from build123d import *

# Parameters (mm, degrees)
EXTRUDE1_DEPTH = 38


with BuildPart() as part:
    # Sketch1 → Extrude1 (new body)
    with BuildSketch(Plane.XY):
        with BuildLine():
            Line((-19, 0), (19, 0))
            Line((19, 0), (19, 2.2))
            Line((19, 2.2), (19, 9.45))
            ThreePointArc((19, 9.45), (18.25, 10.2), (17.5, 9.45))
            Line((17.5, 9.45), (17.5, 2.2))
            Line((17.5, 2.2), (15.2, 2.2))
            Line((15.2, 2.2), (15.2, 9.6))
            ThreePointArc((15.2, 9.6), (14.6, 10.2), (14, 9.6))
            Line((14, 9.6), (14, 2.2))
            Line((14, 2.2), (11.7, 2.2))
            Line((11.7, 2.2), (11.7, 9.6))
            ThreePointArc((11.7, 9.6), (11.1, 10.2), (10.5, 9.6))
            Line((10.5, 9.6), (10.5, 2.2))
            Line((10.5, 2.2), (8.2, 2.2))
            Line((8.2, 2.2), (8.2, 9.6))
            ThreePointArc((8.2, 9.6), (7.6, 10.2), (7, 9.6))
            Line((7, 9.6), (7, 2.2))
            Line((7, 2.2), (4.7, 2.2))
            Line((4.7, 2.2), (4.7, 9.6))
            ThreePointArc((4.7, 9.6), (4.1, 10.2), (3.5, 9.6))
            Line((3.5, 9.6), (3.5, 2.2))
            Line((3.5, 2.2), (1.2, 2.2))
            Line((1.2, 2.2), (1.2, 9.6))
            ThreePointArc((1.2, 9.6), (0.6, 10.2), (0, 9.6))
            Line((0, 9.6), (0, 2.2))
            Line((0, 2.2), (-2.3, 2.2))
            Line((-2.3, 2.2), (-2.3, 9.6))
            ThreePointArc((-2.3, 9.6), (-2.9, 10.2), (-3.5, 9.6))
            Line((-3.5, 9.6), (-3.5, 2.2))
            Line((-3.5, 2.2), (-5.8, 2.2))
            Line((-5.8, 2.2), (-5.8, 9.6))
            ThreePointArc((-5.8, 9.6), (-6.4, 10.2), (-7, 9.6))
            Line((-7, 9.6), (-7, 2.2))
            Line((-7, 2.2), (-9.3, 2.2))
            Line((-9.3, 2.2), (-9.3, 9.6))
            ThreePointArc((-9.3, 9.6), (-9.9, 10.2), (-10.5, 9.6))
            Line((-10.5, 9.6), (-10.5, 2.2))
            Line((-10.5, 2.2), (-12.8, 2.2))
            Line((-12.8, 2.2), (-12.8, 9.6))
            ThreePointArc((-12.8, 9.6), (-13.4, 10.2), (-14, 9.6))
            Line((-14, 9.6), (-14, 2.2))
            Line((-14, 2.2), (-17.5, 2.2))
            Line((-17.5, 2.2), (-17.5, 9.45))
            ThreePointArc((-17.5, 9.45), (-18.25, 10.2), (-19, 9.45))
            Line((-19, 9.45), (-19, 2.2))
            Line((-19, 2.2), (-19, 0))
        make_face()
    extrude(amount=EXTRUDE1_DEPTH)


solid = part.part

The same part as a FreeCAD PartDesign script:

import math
import FreeCAD as App
import Part
import Sketcher

V = App.Vector

doc = App.newDocument("Part")
body = doc.addObject("PartDesign::Body", "Body")

sketch1 = body.newObject("Sketcher::SketchObject", "Sketch")
sketch1.AttachmentSupport = (doc.getObject("XY_Plane"), [""])
sketch1.MapMode = "FlatFace"
sketch1.addGeometry([
    Part.LineSegment(V(-19, 0, 0), V(19, 0, 0)),
    Part.LineSegment(V(19, 0, 0), V(19, 9.4, 0)),
    Part.ArcOfCircle(Part.Circle(V(18.2, 9.4, 0), V(0, 0, 1), 0.8), math.radians(0), math.radians(180)),
    Part.LineSegment(V(17.5, 9.4, 0), V(17.5, 2.2, 0)),
    Part.LineSegment(V(17.5, 2.2, 0), V(15.2, 2.2, 0)),
    Part.LineSegment(V(15.2, 2.2, 0), V(15.2, 9.6, 0)),
    Part.ArcOfCircle(Part.Circle(V(14.6, 9.6, 0), V(0, 0, 1), 0.6), math.radians(0), math.radians(180)),
    Part.LineSegment(V(14, 9.6, 0), V(14, 2.2, 0)),
    Part.LineSegment(V(14, 2.2, 0), V(11.7, 2.2, 0)),
    Part.LineSegment(V(11.7, 2.2, 0), V(11.7, 9.6, 0)),
    Part.ArcOfCircle(Part.Circle(V(11.1, 9.6, 0), V(0, 0, 1), 0.6), math.radians(0), math.radians(180)),
    Part.LineSegment(V(10.5, 9.6, 0), V(10.5, 2.2, 0)),
    Part.LineSegment(V(10.5, 2.2, 0), V(8.2, 2.2, 0)),
    Part.LineSegment(V(8.2, 2.2, 0), V(8.2, 9.6, 0)),
    Part.ArcOfCircle(Part.Circle(V(7.6, 9.6, 0), V(0, 0, 1), 0.6), math.radians(0), math.radians(180)),
    Part.LineSegment(V(7, 9.6, 0), V(7, 2.2, 0)),
    Part.LineSegment(V(7, 2.2, 0), V(4.7, 2.2, 0)),
    Part.LineSegment(V(4.7, 2.2, 0), V(4.7, 9.6, 0)),
    Part.ArcOfCircle(Part.Circle(V(4.1, 9.6, 0), V(0, 0, 1), 0.6), math.radians(0), math.radians(180)),
    Part.LineSegment(V(3.5, 9.6, 0), V(3.5, 2.2, 0)),
    Part.LineSegment(V(3.5, 2.2, 0), V(1.2, 2.2, 0)),
    Part.LineSegment(V(1.2, 2.2, 0), V(1.2, 9.6, 0)),
    Part.ArcOfCircle(Part.Circle(V(0.6, 9.6, 0), V(0, 0, 1), 0.6), math.radians(0), math.radians(180)),
    Part.LineSegment(V(0, 9.6, 0), V(0, 2.2, 0)),
    Part.LineSegment(V(0, 2.2, 0), V(-2.3, 2.2, 0)),
    Part.LineSegment(V(-2.3, 2.2, 0), V(-2.3, 9.6, 0)),
    Part.ArcOfCircle(Part.Circle(V(-2.9, 9.6, 0), V(0, 0, 1), 0.6), math.radians(0), math.radians(180)),
    Part.LineSegment(V(-3.5, 9.6, 0), V(-3.5, 2.2, 0)),
    Part.LineSegment(V(-3.5, 2.2, 0), V(-5.8, 2.2, 0)),
    Part.LineSegment(V(-5.8, 2.2, 0), V(-5.8, 9.6, 0)),
    Part.ArcOfCircle(Part.Circle(V(-6.4, 9.6, 0), V(0, 0, 1), 0.6), math.radians(0), math.radians(180)),
    Part.LineSegment(V(-7, 9.6, 0), V(-7, 2.2, 0)),
    Part.LineSegment(V(-7, 2.2, 0), V(-9.3, 2.2, 0)),
    Part.LineSegment(V(-9.3, 2.2, 0), V(-9.3, 9.6, 0)),
    Part.ArcOfCircle(Part.Circle(V(-9.9, 9.6, 0), V(0, 0, 1), 0.6), math.radians(0), math.radians(180)),
    Part.LineSegment(V(-10.5, 9.6, 0), V(-10.5, 2.2, 0)),
    Part.LineSegment(V(-10.5, 2.2, 0), V(-12.8, 2.2, 0)),
    Part.LineSegment(V(-12.8, 2.2, 0), V(-12.8, 9.6, 0)),
    Part.ArcOfCircle(Part.Circle(V(-13.4, 9.6, 0), V(0, 0, 1), 0.6), math.radians(0), math.radians(180)),
    Part.LineSegment(V(-14, 9.6, 0), V(-14, 2.2, 0)),
    Part.LineSegment(V(-14, 2.2, 0), V(-17.5, 2.2, 0)),
    Part.LineSegment(V(-17.5, 2.2, 0), V(-17.5, 9.4, 0)),
    Part.ArcOfCircle(Part.Circle(V(-18.2, 9.4, 0), V(0, 0, 1), 0.8), math.radians(0), math.radians(180)),
    Part.LineSegment(V(-19, 9.4, 0), V(-19, 0, 0)),
], False)
sketch1.addConstraint([
    Sketcher.Constraint("Coincident", 0, 2, 1, 1),
    Sketcher.Constraint("Tangent", 1, 2, 2, 1),
    Sketcher.Constraint("Tangent", 2, 2, 3, 1),
    Sketcher.Constraint("Coincident", 3, 2, 4, 1),
    Sketcher.Constraint("Coincident", 4, 2, 5, 1),
    Sketcher.Constraint("Tangent", 5, 2, 6, 1),
    Sketcher.Constraint("Tangent", 6, 2, 7, 1),
    Sketcher.Constraint("Coincident", 7, 2, 8, 1),
    Sketcher.Constraint("Coincident", 8, 2, 9, 1),
    Sketcher.Constraint("Tangent", 9, 2, 10, 1),
    Sketcher.Constraint("Tangent", 10, 2, 11, 1),
    Sketcher.Constraint("Coincident", 11, 2, 12, 1),
    Sketcher.Constraint("Coincident", 12, 2, 13, 1),
    Sketcher.Constraint("Tangent", 13, 2, 14, 1),
    Sketcher.Constraint("Tangent", 14, 2, 15, 1),
    Sketcher.Constraint("Coincident", 15, 2, 16, 1),
    Sketcher.Constraint("Coincident", 16, 2, 17, 1),
    Sketcher.Constraint("Tangent", 17, 2, 18, 1),
    Sketcher.Constraint("Tangent", 18, 2, 19, 1),
    Sketcher.Constraint("Coincident", 19, 2, 20, 1),
    Sketcher.Constraint("Coincident", 20, 2, 21, 1),
    Sketcher.Constraint("Tangent", 21, 2, 22, 1),
    Sketcher.Constraint("Tangent", 22, 2, 23, 1),
    Sketcher.Constraint("Coincident", 23, 2, 24, 1),
    Sketcher.Constraint("Coincident", 24, 2, 25, 1),
    Sketcher.Constraint("Tangent", 25, 2, 26, 1),
    Sketcher.Constraint("Tangent", 26, 2, 27, 1),
    Sketcher.Constraint("Coincident", 27, 2, 28, 1),
    Sketcher.Constraint("Coincident", 28, 2, 29, 1),
    Sketcher.Constraint("Tangent", 29, 2, 30, 1),
    Sketcher.Constraint("Tangent", 30, 2, 31, 1),
    Sketcher.Constraint("Coincident", 31, 2, 32, 1),
    Sketcher.Constraint("Coincident", 32, 2, 33, 1),
    Sketcher.Constraint("Tangent", 33, 2, 34, 1),
    Sketcher.Constraint("Tangent", 34, 2, 35, 1),
    Sketcher.Constraint("Coincident", 35, 2, 36, 1),
    Sketcher.Constraint("Coincident", 36, 2, 37, 1),
    Sketcher.Constraint("Tangent", 37, 2, 38, 1),
    Sketcher.Constraint("Tangent", 38, 2, 39, 1),
    Sketcher.Constraint("Coincident", 39, 2, 40, 1),
    Sketcher.Constraint("Coincident", 40, 2, 41, 1),
    Sketcher.Constraint("Tangent", 41, 2, 42, 1),
    Sketcher.Constraint("Tangent", 42, 2, 43, 1),
    Sketcher.Constraint("Coincident", 43, 2, 0, 1),
    Sketcher.Constraint("Horizontal", 0),
    Sketcher.Constraint("Vertical", 1),
    Sketcher.Constraint("Vertical", 3),
    Sketcher.Constraint("Horizontal", 4),
    Sketcher.Constraint("Vertical", 5),
    Sketcher.Constraint("Vertical", 7),
    Sketcher.Constraint("Horizontal", 8),
    Sketcher.Constraint("Vertical", 9),
    Sketcher.Constraint("Vertical", 11),
    Sketcher.Constraint("Horizontal", 12),
    Sketcher.Constraint("Vertical", 13),
    Sketcher.Constraint("Vertical", 15),
    Sketcher.Constraint("Horizontal", 16),
    Sketcher.Constraint("Vertical", 17),
    Sketcher.Constraint("Vertical", 19),
    Sketcher.Constraint("Horizontal", 20),
    Sketcher.Constraint("Vertical", 21),
    Sketcher.Constraint("Vertical", 23),
    Sketcher.Constraint("Horizontal", 24),
    Sketcher.Constraint("Vertical", 25),
    Sketcher.Constraint("Vertical", 27),
    Sketcher.Constraint("Horizontal", 28),
    Sketcher.Constraint("Vertical", 29),
    Sketcher.Constraint("Vertical", 31),
    Sketcher.Constraint("Horizontal", 32),
    Sketcher.Constraint("Vertical", 33),
    Sketcher.Constraint("Vertical", 35),
    Sketcher.Constraint("Horizontal", 36),
    Sketcher.Constraint("Vertical", 37),
    Sketcher.Constraint("Vertical", 39),
    Sketcher.Constraint("Horizontal", 40),
    Sketcher.Constraint("Vertical", 41),
    Sketcher.Constraint("Vertical", 43),
    Sketcher.Constraint("Equal", 6, 10),
    Sketcher.Constraint("Equal", 10, 14),
    Sketcher.Constraint("Equal", 14, 18),
    Sketcher.Constraint("Equal", 18, 22),
    Sketcher.Constraint("Equal", 22, 26),
    Sketcher.Constraint("Equal", 26, 30),
    Sketcher.Constraint("Equal", 30, 34),
    Sketcher.Constraint("Equal", 34, 38),
    Sketcher.Constraint("Equal", 2, 42),
    Sketcher.Constraint("Symmetric", 0, 2, 43, 2, -1, 1),
    Sketcher.Constraint("Symmetric", 18, 2, 26, 2, -2),
    Sketcher.Constraint("Symmetric", 14, 2, 30, 2, -2),
    Sketcher.Constraint("Symmetric", 10, 2, 34, 2, -2),
    Sketcher.Constraint("Symmetric", 6, 2, 38, 2, -2),
    Sketcher.Constraint("PointOnObject", 22, 2, -2),
    Sketcher.Constraint("Horizontal", 6, 3, 10, 3),
    Sketcher.Constraint("Horizontal", 10, 3, 14, 3),
    Sketcher.Constraint("Horizontal", 14, 3, 18, 3),
    Sketcher.Constraint("Horizontal", 18, 3, 22, 3),
    Sketcher.Constraint("Horizontal", 2, 3, 42, 3),
    Sketcher.Constraint("Horizontal", 4, 2, 7, 2),
    Sketcher.Constraint("Horizontal", 8, 2, 11, 2),
    Sketcher.Constraint("Horizontal", 12, 2, 15, 2),
    Sketcher.Constraint("Horizontal", 16, 2, 19, 2),
    Sketcher.Constraint("Horizontal", 20, 2, 23, 2),
    Sketcher.Constraint("Horizontal", 24, 2, 27, 2),
    Sketcher.Constraint("Horizontal", 28, 2, 31, 2),
    Sketcher.Constraint("Horizontal", 32, 2, 35, 2),
    Sketcher.Constraint("Horizontal", 36, 2, 39, 2),
    Sketcher.Constraint("Equal", 4, 8),
    Sketcher.Constraint("Equal", 8, 12),
    Sketcher.Constraint("Equal", 12, 16),
    Sketcher.Constraint("Equal", 16, 20),
    Sketcher.Constraint("Radius", 6, 0.6),
    Sketcher.Constraint("DistanceX", 0, 1, 0, 2, 38.0),
    Sketcher.Constraint("Radius", 2, 0.75),
    Sketcher.Constraint("DistanceY", 5, 1, 5, 2, 7.4),
    Sketcher.Constraint("DistanceY", 1, 1, 1, 2, 9.45),
    Sketcher.Constraint("DistanceY", 3, 2, 3, 1, 7.25),
])
pad1 = body.newObject("PartDesign::Pad", "Pad")
pad1.Profile = sketch1
pad1.Length = 38

doc.recompute()
